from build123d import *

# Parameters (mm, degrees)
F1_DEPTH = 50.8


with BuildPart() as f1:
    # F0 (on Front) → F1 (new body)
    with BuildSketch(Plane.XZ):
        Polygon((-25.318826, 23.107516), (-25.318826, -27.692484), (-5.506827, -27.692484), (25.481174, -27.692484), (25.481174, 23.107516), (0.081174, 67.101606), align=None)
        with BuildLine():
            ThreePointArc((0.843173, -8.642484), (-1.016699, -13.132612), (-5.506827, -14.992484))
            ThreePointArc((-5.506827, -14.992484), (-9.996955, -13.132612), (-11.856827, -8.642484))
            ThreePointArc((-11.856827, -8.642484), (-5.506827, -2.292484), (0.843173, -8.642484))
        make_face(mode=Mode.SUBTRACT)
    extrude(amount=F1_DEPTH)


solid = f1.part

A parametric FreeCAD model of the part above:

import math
import FreeCAD as App
import Part
import Sketcher

V = App.Vector
Q = App.Units.Quantity

doc = App.newDocument("Part")
params = doc.addObject("Spreadsheet::Sheet", "Params")
for row, (alias, value) in enumerate([
    ("sketch1_width", "2 in"),
    ("sketch1_radius", "0.25 in"),
    ("sketch1_length", "2 in"),
    ("pad1_length", "2 in"),
], start=1):
    params.set(f"A{row}", alias)
    params.set(f"B{row}", "=" + value)
    params.setAlias(f"B{row}", alias)

body = doc.addObject("PartDesign::Body", "Body")

sketch1 = body.newObject("Sketcher::SketchObject", "Sketch")
sketch1.AttachmentSupport = (doc.getObject("XZ_Plane"), [""])
sketch1.MapMode = "FlatFace"
sketch1.addGeometry([
    Part.LineSegment(V(-25.318826, 23.107516, 0), V(-25.318826, -27.692484, 0)),
    Part.LineSegment(V(-25.318826, -27.692484, 0), V(25.481174, -27.692484, 0)),
    Part.LineSegment(V(25.481174, -27.692484, 0), V(25.481174, 23.107516, 0)),
    Part.LineSegment(V(25.481174, 23.107516, 0), V(0.081174, 67.101606, 0)),
    Part.LineSegment(V(0.081174, 67.101606, 0), V(-25.318826, 23.107516, 0)),
    Part.ArcOfCircle(Part.Circle(V(-5.506827, -8.642484, 0), V(0, 0, 1), 6.35), math.radians(0), math.radians(180)),
    Part.ArcOfCircle(Part.Circle(V(-5.506827, -8.642484, 0), V(0, 0, 1), 6.35), math.radians(-89.999998), math.radians(-0.000002)),
    Part.ArcOfCircle(Part.Circle(V(-5.506827, -8.642484, 0), V(0, 0, 1), 6.35), math.radians(-179.999998), math.radians(-90.000002)),
], False)
sketch1.addConstraint([
    Sketcher.Constraint("Coincident", 0, 2, 1, 1),
    Sketcher.Constraint("Coincident", 1, 2, 2, 1),
    Sketcher.Constraint("Coincident", 2, 2, 3, 1),
    Sketcher.Constraint("Coincident", 3, 2, 4, 1),
    Sketcher.Constraint("Coincident", 4, 2, 0, 1),
    Sketcher.Constraint("Tangent", 5, 1, 6, 2),
    Sketcher.Constraint("Tangent", 6, 1, 7, 2),
    Sketcher.Constraint("Tangent", 7, 1, 5, 2),
    Sketcher.Constraint("Vertical", 0),
    Sketcher.Constraint("Horizontal", 1),
    Sketcher.Constraint("Vertical", 2),
    Sketcher.Constraint("Horizontal", 2, 2, 4, 2),
    Sketcher.Constraint("Horizontal", 7, 3, 5, 1),
    Sketcher.Constraint("Horizontal", 5, 1, 7, 1),
    Sketcher.Constraint("Vertical", 7, 3, 6, 1),
    Sketcher.Constraint("Equal", 1, 0),
    Sketcher.Constraint("Equal", 3, 4),
    Sketcher.Constraint("DistanceX", 1, 1, 1, 2, Q("2 in")),
    Sketcher.Constraint("Radius", 5, Q("0.25 in")),
    Sketcher.Constraint("Distance", 3, Q("2 in")),
    Sketcher.Constraint("DistanceY", 0, 2, 6, 1, Q("0.5 in")),
    Sketcher.Constraint("DistanceX", 0, 2, 6, 3, Q("0.78 in")),
    Sketcher.Constraint("DistanceX", 5, 3, -1, 1, Q("5.506827 mm")),
    Sketcher.Constraint("DistanceY", 5, 3, -1, 1, Q("8.642484 mm")),
])
sketch1.setExpression("Constraints[17]", "Params.sketch1_width")
sketch1.setExpression("Constraints[18]", "Params.sketch1_radius")
sketch1.setExpression("Constraints[19]", "Params.sketch1_length")
pad1 = body.newObject("PartDesign::Pad", "Pad")
pad1.Profile = sketch1
pad1.setExpression("Length", "Params.pad1_length")

doc.recompute()
